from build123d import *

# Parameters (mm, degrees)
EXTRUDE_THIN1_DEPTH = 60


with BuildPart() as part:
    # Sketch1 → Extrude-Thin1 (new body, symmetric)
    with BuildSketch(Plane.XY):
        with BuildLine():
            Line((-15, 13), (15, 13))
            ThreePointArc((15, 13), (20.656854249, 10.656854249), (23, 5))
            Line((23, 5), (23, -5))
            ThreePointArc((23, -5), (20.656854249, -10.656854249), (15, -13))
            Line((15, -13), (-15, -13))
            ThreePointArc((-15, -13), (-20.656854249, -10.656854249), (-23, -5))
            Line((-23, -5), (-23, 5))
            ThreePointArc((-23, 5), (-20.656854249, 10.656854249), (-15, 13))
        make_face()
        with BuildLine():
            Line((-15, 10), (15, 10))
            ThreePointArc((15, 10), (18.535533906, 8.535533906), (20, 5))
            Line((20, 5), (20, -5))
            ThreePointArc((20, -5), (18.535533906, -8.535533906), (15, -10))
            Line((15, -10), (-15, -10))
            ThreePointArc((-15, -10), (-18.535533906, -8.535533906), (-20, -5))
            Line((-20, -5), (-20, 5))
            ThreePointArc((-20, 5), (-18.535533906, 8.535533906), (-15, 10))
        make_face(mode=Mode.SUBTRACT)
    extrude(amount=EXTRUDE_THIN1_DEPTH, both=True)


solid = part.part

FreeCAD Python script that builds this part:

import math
import FreeCAD as App
import Part
import Sketcher
Q = App.Units.Quantity

doc = App.newDocument("Part")
body = doc.addObject("PartDesign::Body", "Body")

# Sketch on XY plane
sketch1 = body.newObject("Sketcher::SketchObject", "Sketch")
sketch1.AttachmentSupport = (doc.getObject("XY_Plane"), [""])
sketch1.MapMode = "FlatFace"
sketch1.addGeometry(Part.LineSegment(App.Vector(15, 13, 0), App.Vector(-15, 13, 0)), False)
sketch1.addGeometry(Part.ArcOfCircle(Part.Circle(App.Vector(-15, 5, 0), App.Vector(0, 0, 1), 8), math.radians(90), math.radians(180)), False)
sketch1.addGeometry(Part.LineSegment(App.Vector(-23, 5, 0), App.Vector(-23, -5, 0)), False)
sketch1.addGeometry(Part.ArcOfCircle(Part.Circle(App.Vector(-15, -5, 0), App.Vector(0, 0, 1), 8), math.radians(-180), math.radians(-90)), False)
sketch1.addGeometry(Part.LineSegment(App.Vector(-15, -13, 0), App.Vector(15, -13, 0)), False)
sketch1.addGeometry(Part.ArcOfCircle(Part.Circle(App.Vector(15, -5, 0), App.Vector(0, 0, 1), 8), math.radians(-90), math.radians(0)), False)
sketch1.addGeometry(Part.LineSegment(App.Vector(23, -5, 0), App.Vector(23, 5, 0)), False)
sketch1.addGeometry(Part.ArcOfCircle(Part.Circle(App.Vector(15, 5, 0), App.Vector(0, 0, 1), 8), math.radians(0), math.radians(90)), False)
sketch1.addGeometry(Part.LineSegment(App.Vector(-15, 10, 0), App.Vector(15, 10, 0)), False)
sketch1.addGeometry(Part.ArcOfCircle(Part.Circle(App.Vector(15, 5, 0), App.Vector(0, 0, 1), 5), math.radians(0), math.radians(90)), False)
sketch1.addGeometry(Part.LineSegment(App.Vector(20, 5, 0), App.Vector(20, -5, 0)), False)
sketch1.addGeometry(Part.ArcOfCircle(Part.Circle(App.Vector(15, -5, 0), App.Vector(0, 0, 1), 5), math.radians(-90), math.radians(0)), False)
sketch1.addGeometry(Part.LineSegment(App.Vector(15, -10, 0), App.Vector(-15, -10, 0)), False)
sketch1.addGeometry(Part.ArcOfCircle(Part.Circle(App.Vector(-15, -5, 0), App.Vector(0, 0, 1), 5), math.radians(180), math.radians(270)), False)
sketch1.addGeometry(Part.LineSegment(App.Vector(-20, -5, 0), App.Vector(-20, 5, 0)), False)
sketch1.addGeometry(Part.ArcOfCircle(Part.Circle(App.Vector(-15, 5, 0), App.Vector(0, 0, 1), 5), math.radians(90), math.radians(180)), False)
sketch1.addConstraint(Sketcher.Constraint("Tangent", 0, 2, 1, 1))
sketch1.addConstraint(Sketcher.Constraint("Tangent", 1, 2, 2, 1))
sketch1.addConstraint(Sketcher.Constraint("Tangent", 2, 2, 3, 1))
sketch1.addConstraint(Sketcher.Constraint("Tangent", 3, 2, 4, 1))
sketch1.addConstraint(Sketcher.Constraint("Tangent", 4, 2, 5, 1))
sketch1.addConstraint(Sketcher.Constraint("Tangent", 5, 2, 6, 1))
sketch1.addConstraint(Sketcher.Constraint("Tangent", 6, 2, 7, 1))
sketch1.addConstraint(Sketcher.Constraint("Tangent", 7, 2, 0, 1))
sketch1.addConstraint(Sketcher.Constraint("Tangent", 8, 2, 9, 2))
sketch1.addConstraint(Sketcher.Constraint("Tangent", 9, 1, 10, 1))
sketch1.addConstraint(Sketcher.Constraint("Tangent", 10, 2, 11, 2))
sketch1.addConstraint(Sketcher.Constraint("Tangent", 11, 1, 12, 1))
sketch1.addConstraint(Sketcher.Constraint("Tangent", 12, 2, 13, 2))
sketch1.addConstraint(Sketcher.Constraint("Tangent", 13, 1, 14, 1))
sketch1.addConstraint(Sketcher.Constraint("Tangent", 14, 2, 15, 2))
sketch1.addConstraint(Sketcher.Constraint("Tangent", 15, 1, 8, 1))
sketch1.addConstraint(Sketcher.Constraint("Horizontal", 0))
sketch1.addConstraint(Sketcher.Constraint("Vertical", 2))
sketch1.addConstraint(Sketcher.Constraint("Horizontal", 4))
sketch1.addConstraint(Sketcher.Constraint("Vertical", 6))
sketch1.addConstraint(Sketcher.Constraint("Horizontal", 8))
sketch1.addConstraint(Sketcher.Constraint("Vertical", 10))
sketch1.addConstraint(Sketcher.Constraint("Horizontal", 12))
sketch1.addConstraint(Sketcher.Constraint("Vertical", 14))
sketch1.addConstraint(Sketcher.Constraint("Coincident", 9, 3, 7, 3))
sketch1.addConstraint(Sketcher.Constraint("Coincident", 11, 3, 5, 3))
sketch1.addConstraint(Sketcher.Constraint("Coincident", 13, 3, 3, 3))
sketch1.addConstraint(Sketcher.Constraint("Equal", 1, 3))
sketch1.addConstraint(Sketcher.Constraint("Equal", 3, 5))
sketch1.addConstraint(Sketcher.Constraint("Equal", 5, 7))
sketch1.addConstraint(Sketcher.Constraint("Equal", 13, 15))
sketch1.addConstraint(Sketcher.Constraint("Symmetric", 1, 3, 5, 3, -1, 1))
sketch1.addConstraint(Sketcher.Constraint("Radius", 1, Q("8 mm")))
sketch1.addConstraint(Sketcher.Constraint("Radius", 9, Q("5 mm")))
sketch1.addConstraint(Sketcher.Constraint("DistanceX", 0, 2, 0, 1, Q("30 mm")))
sketch1.addConstraint(Sketcher.Constraint("DistanceY", 2, 2, 2, 1, Q("10 mm")))
pad1 = body.newObject("PartDesign::Pad", "Pad")
pad1.Profile = sketch1
pad1.Length = 120
pad1.Midplane = True

doc.recompute()
